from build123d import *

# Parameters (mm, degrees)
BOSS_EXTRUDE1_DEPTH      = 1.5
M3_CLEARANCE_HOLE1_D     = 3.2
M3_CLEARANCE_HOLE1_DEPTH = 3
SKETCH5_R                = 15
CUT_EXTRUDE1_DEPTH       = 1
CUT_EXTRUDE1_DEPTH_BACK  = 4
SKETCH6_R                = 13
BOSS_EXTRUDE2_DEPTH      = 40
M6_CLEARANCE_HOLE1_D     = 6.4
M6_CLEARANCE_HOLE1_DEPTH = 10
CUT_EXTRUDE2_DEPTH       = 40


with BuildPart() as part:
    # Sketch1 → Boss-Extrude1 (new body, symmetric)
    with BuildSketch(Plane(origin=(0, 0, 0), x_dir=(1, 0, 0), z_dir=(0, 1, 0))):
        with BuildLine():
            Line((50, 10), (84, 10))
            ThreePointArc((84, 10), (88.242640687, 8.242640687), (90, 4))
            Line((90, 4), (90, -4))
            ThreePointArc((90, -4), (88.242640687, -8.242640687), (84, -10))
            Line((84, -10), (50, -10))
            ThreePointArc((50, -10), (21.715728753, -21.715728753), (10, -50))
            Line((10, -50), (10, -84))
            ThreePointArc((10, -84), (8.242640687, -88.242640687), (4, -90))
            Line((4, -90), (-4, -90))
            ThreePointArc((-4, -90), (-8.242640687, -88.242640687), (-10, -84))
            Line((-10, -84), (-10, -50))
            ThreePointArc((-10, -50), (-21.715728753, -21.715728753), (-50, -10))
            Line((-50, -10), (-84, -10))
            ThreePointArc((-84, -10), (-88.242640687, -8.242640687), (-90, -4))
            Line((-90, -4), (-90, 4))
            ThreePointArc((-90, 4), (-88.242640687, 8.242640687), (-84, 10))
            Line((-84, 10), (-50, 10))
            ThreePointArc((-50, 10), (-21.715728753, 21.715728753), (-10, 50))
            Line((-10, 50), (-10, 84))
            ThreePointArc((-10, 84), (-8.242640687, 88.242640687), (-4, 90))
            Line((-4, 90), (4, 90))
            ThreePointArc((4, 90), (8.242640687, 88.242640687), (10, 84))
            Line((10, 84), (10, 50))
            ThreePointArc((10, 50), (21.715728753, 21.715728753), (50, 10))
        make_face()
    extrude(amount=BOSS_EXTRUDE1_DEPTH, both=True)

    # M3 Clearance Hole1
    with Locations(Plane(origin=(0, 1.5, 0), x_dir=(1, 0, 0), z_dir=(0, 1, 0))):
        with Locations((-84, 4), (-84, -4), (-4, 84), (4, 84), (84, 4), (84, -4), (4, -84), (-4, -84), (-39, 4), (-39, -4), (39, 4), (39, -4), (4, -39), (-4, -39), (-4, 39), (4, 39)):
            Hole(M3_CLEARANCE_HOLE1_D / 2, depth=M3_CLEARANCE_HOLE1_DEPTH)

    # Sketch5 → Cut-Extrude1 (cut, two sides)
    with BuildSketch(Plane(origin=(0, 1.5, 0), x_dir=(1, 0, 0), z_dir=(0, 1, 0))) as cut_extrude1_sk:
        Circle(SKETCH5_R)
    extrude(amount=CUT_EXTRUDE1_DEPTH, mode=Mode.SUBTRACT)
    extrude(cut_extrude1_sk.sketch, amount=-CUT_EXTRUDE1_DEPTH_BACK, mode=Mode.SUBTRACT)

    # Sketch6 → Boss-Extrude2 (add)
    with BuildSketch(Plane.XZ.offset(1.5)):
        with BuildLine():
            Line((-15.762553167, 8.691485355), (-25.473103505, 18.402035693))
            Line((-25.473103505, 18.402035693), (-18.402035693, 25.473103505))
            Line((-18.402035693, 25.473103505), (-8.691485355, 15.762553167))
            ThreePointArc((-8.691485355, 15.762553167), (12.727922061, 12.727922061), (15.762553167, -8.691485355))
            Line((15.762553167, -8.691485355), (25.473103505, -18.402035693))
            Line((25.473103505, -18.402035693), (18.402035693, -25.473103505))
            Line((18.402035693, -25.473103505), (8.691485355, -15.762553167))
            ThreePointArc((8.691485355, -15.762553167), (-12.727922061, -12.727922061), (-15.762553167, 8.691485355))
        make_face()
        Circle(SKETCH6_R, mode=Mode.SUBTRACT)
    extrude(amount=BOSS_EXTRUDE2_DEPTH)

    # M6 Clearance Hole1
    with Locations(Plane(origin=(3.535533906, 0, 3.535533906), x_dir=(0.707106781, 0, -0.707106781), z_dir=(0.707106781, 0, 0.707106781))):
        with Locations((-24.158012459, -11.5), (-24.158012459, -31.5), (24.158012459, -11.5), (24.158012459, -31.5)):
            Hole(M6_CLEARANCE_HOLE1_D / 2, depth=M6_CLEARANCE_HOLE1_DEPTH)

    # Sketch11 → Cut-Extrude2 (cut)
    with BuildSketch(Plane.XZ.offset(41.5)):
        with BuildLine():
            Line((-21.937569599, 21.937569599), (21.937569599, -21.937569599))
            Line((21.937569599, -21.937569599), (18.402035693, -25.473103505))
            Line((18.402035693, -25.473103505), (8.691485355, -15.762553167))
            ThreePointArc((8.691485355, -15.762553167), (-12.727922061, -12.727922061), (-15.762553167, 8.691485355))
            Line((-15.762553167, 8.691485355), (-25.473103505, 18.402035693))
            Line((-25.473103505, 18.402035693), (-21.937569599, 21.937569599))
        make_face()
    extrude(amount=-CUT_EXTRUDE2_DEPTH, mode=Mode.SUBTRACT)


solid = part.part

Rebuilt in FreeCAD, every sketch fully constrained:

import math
import FreeCAD as App
import Part
import Sketcher
from FreeCAD import Vector
Q = App.Units.Quantity

doc = App.newDocument("Part")
params = doc.addObject("Spreadsheet::Sheet", "Params")
for row, (alias, value) in enumerate([
    ("sketch1_radius", "40 mm"),
    ("sketch1_radius2", "6 mm"),
    ("sketch1_width", "34 mm"),
    ("sketch1_width2", "8 mm"),
    ("pad1_length", "3 mm"),
    ("sketch2_diameter", "3.2 mm"),
    ("hole_diameter", "3.2 mm"),
    ("hole_depth", "3 mm"),
    ("sketch3_diameter", "30 mm"),
    ("sketch4_diameter", "26 mm"),
    ("sketch4_radius", "18 mm"),
    ("sketch4_length", "10 mm"),
    ("pad2_length", "40 mm"),
    ("sketch5_diameter", "6.4 mm"),
    ("hole2_diameter", "6.4 mm"),
    ("hole2_depth", "10 mm"),
    ("sketch6_radius", "18 mm"),
    ("sketch6_length", "5 mm"),
    ("pocket2_length", "40 mm"),
], start=1):
    params.set(f"A{row}", alias)
    params.set(f"B{row}", "=" + value)
    params.setAlias(f"B{row}", alias)

body = doc.addObject("PartDesign::Body", "Body")

sketch1 = doc.addObject("Sketcher::SketchObject", "Sketch")
body.addObject(sketch1)
sketch1.AttachmentSupport = (doc.XZ_Plane, [""])
sketch1.MapMode = "FlatFace"
sketch1.addGeometry([
    Part.LineSegment(Vector(84, -10, 0), Vector(50, -10, 0)),
    Part.ArcOfCircle(Part.Circle(Vector(50, -50, 0), Vector(0, 0, 1), 40), math.radians(90), math.radians(180)),
    Part.LineSegment(Vector(10, -50, 0), Vector(10, -84, 0)),
    Part.ArcOfCircle(Part.Circle(Vector(4, -84, 0), Vector(0, 0, 1), 6), math.radians(-90), math.radians(0)),
    Part.LineSegment(Vector(4, -90, 0), Vector(-4, -90, 0)),
    Part.ArcOfCircle(Part.Circle(Vector(-4, -84, 0), Vector(0, 0, 1), 6), math.radians(180), math.radians(270)),
    Part.LineSegment(Vector(-10, -84, 0), Vector(-10, -50, 0)),
    Part.ArcOfCircle(Part.Circle(Vector(-50, -50, 0), Vector(0, 0, 1), 40), math.radians(0), math.radians(90)),
    Part.LineSegment(Vector(-50, -10, 0), Vector(-84, -10, 0)),
    Part.ArcOfCircle(Part.Circle(Vector(-84, -4, 0), Vector(0, 0, 1), 6), math.radians(180), math.radians(270)),
    Part.LineSegment(Vector(-90, -4, 0), Vector(-90, 4, 0)),
    Part.ArcOfCircle(Part.Circle(Vector(-84, 4, 0), Vector(0, 0, 1), 6), math.radians(90), math.radians(180)),
    Part.LineSegment(Vector(-84, 10, 0), Vector(-50, 10, 0)),
    Part.ArcOfCircle(Part.Circle(Vector(-50, 50, 0), Vector(0, 0, 1), 40), math.radians(-90), math.radians(0)),
    Part.LineSegment(Vector(-10, 50, 0), Vector(-10, 84, 0)),
    Part.ArcOfCircle(Part.Circle(Vector(-4, 84, 0), Vector(0, 0, 1), 6), math.radians(90), math.radians(180)),
    Part.LineSegment(Vector(-4, 90, 0), Vector(4, 90, 0)),
    Part.ArcOfCircle(Part.Circle(Vector(4, 84, 0), Vector(0, 0, 1), 6), math.radians(0), math.radians(90)),
    Part.LineSegment(Vector(10, 84, 0), Vector(10, 50, 0)),
    Part.ArcOfCircle(Part.Circle(Vector(50, 50, 0), Vector(0, 0, 1), 40), math.radians(-180), math.radians(-90)),
    Part.LineSegment(Vector(50, 10, 0), Vector(84, 10, 0)),
    Part.ArcOfCircle(Part.Circle(Vector(84, 4, 0), Vector(0, 0, 1), 6), math.radians(0), math.radians(90)),
    Part.LineSegment(Vector(90, 4, 0), Vector(90, -4, 0)),
    Part.ArcOfCircle(Part.Circle(Vector(84, -4, 0), Vector(0, 0, 1), 6), math.radians(-90), math.radians(0)),
], False)
sketch1.addConstraint([
    Sketcher.Constraint("Tangent", 0, 2, 1, 1),
    Sketcher.Constraint("Tangent", 1, 2, 2, 1),
    Sketcher.Constraint("Tangent", 2, 2, 3, 2),
    Sketcher.Constraint("Tangent", 3, 1, 4, 1),
    Sketcher.Constraint("Tangent", 4, 2, 5, 2),
    Sketcher.Constraint("Tangent", 5, 1, 6, 1),
    Sketcher.Constraint("Tangent", 6, 2, 7, 1),
    Sketcher.Constraint("Tangent", 7, 2, 8, 1),
    Sketcher.Constraint("Tangent", 8, 2, 9, 2),
    Sketcher.Constraint("Tangent", 9, 1, 10, 1),
    Sketcher.Constraint("Tangent", 10, 2, 11, 2),
    Sketcher.Constraint("Tangent", 11, 1, 12, 1),
    Sketcher.Constraint("Tangent", 12, 2, 13, 1),
    Sketcher.Constraint("Tangent", 13, 2, 14, 1),
    Sketcher.Constraint("Tangent", 14, 2, 15, 2),
    Sketcher.Constraint("Tangent", 15, 1, 16, 1),
    Sketcher.Constraint("Tangent", 16, 2, 17, 2),
    Sketcher.Constraint("Tangent", 17, 1, 18, 1),
    Sketcher.Constraint("Tangent", 18, 2, 19, 1),
    Sketcher.Constraint("Tangent", 19, 2, 20, 1),
    Sketcher.Constraint("Tangent", 20, 2, 21, 2),
    Sketcher.Constraint("Tangent", 21, 1, 22, 1),
    Sketcher.Constraint("Tangent", 22, 2, 23, 2),
    Sketcher.Constraint("Tangent", 23, 1, 0, 1),
    Sketcher.Constraint("Horizontal", 0),
    Sketcher.Constraint("Vertical", 2),
    Sketcher.Constraint("Horizontal", 4),
    Sketcher.Constraint("Vertical", 6),
    Sketcher.Constraint("Horizontal", 8),
    Sketcher.Constraint("Vertical", 10),
    Sketcher.Constraint("Horizontal", 12),
    Sketcher.Constraint("Vertical", 14),
    Sketcher.Constraint("Horizontal", 16),
    Sketcher.Constraint("Vertical", 18),
    Sketcher.Constraint("Horizontal", 20),
    Sketcher.Constraint("Vertical", 22),
    Sketcher.Constraint("Equal", 3, 5),
    Sketcher.Constraint("Equal", 1, 7),
    Sketcher.Constraint("Equal", 5, 9),
    Sketcher.Constraint("Equal", 9, 11),
    Sketcher.Constraint("Equal", 7, 13),
    Sketcher.Constraint("Equal", 11, 15),
    Sketcher.Constraint("Equal", 15, 17),
    Sketcher.Constraint("Equal", 13, 19),
    Sketcher.Constraint("Equal", 17, 21),
    Sketcher.Constraint("Equal", 21, 23),
    Sketcher.Constraint("Symmetric", 1, 3, 13, 3, -1, 1),
    Sketcher.Constraint("Symmetric", 5, 3, 17, 3, -1, 1),
    Sketcher.Constraint("Symmetric", 9, 3, 21, 3, -1, 1),
    Sketcher.Constraint("Symmetric", 1, 3, 7, 3, -2),
    Sketcher.Constraint("Equal", 20, 2),
    Sketcher.Constraint("Equal", 16, 10),
    Sketcher.Constraint("Radius", 1, 40.0),
    Sketcher.Constraint("Radius", 3, 6.0),
    Sketcher.Constraint("DistanceX", 0, 2, 0, 1, 34.0),
    Sketcher.Constraint("DistanceX", 4, 2, 4, 1, 8.0),
])
sketch1.setExpression("Constraints[52]", "Params.sketch1_radius")
sketch1.setExpression("Constraints[53]", "Params.sketch1_radius2")
sketch1.setExpression("Constraints[54]", "Params.sketch1_width")
sketch1.setExpression("Constraints[55]", "Params.sketch1_width2")
pad1 = doc.addObject("PartDesign::Pad", "Pad")
body.addObject(pad1)
pad1.Profile = sketch1
pad1.setExpression("Length", "Params.pad1_length")
pad1.Midplane = True

sketch2 = doc.addObject("Sketcher::SketchObject", "Sketch001")
body.addObject(sketch2)
sketch2.AttachmentSupport = (doc.XZ_Plane, [""])
sketch2.MapMode = "FlatFace"
sketch2.AttachmentOffset = App.Placement(Vector(0, 0, -1.5), App.Rotation())
sketch2.addGeometry([
    Part.Circle(Vector(-84, -4, 0), Vector(0, 0, 1), 1.6),
    Part.Circle(Vector(-84, 4, 0), Vector(0, 0, 1), 1.6),
    Part.Circle(Vector(-4, -84, 0), Vector(0, 0, 1), 1.6),
    Part.Circle(Vector(4, -84, 0), Vector(0, 0, 1), 1.6),
    Part.Circle(Vector(84, -4, 0), Vector(0, 0, 1), 1.6),
    Part.Circle(Vector(84, 4, 0), Vector(0, 0, 1), 1.6),
    Part.Circle(Vector(4, 84, 0), Vector(0, 0, 1), 1.6),
    Part.Circle(Vector(-4, 84, 0), Vector(0, 0, 1), 1.6),
    Part.Circle(Vector(-39, -4, 0), Vector(0, 0, 1), 1.6),
    Part.Circle(Vector(-39, 4, 0), Vector(0, 0, 1), 1.6),
    Part.Circle(Vector(39, -4, 0), Vector(0, 0, 1), 1.6),
    Part.Circle(Vector(39, 4, 0), Vector(0, 0, 1), 1.6),
    Part.Circle(Vector(4, 39, 0), Vector(0, 0, 1), 1.6),
    Part.Circle(Vector(-4, 39, 0), Vector(0, 0, 1), 1.6),
    Part.Circle(Vector(-4, -39, 0), Vector(0, 0, 1), 1.6),
    Part.Circle(Vector(4, -39, 0), Vector(0, 0, 1), 1.6),
], False)
sketch2.addConstraint([
    Sketcher.Constraint("Equal", 0, 1),
    Sketcher.Constraint("Equal", 1, 2),
    Sketcher.Constraint("Equal", 2, 3),
    Sketcher.Constraint("Equal", 3, 4),
    Sketcher.Constraint("Equal", 4, 5),
    Sketcher.Constraint("Equal", 5, 6),
    Sketcher.Constraint("Equal", 6, 7),
    Sketcher.Constraint("Equal", 7, 8),
    Sketcher.Constraint("Equal", 8, 9),
    Sketcher.Constraint("Equal", 9, 10),
    Sketcher.Constraint("Equal", 10, 11),
    Sketcher.Constraint("Equal", 11, 12),
    Sketcher.Constraint("Equal", 12, 13),
    Sketcher.Constraint("Equal", 13, 14),
    Sketcher.Constraint("Equal", 14, 15),
    Sketcher.Constraint("Symmetric", 1, 3, 4, 3, -1, 1),
    Sketcher.Constraint("Symmetric", 0, 3, 5, 3, -1, 1),
    Sketcher.Constraint("Symmetric", 2, 3, 6, 3, -1, 1),
    Sketcher.Constraint("Symmetric", 3, 3, 7, 3, -1, 1),
    Sketcher.Constraint("Symmetric", 9, 3, 10, 3, -1, 1),
    Sketcher.Constraint("Symmetric", 8, 3, 11, 3, -1, 1),
    Sketcher.Constraint("Symmetric", 12, 3, 14, 3, -1, 1),
    Sketcher.Constraint("Symmetric", 13, 3, 15, 3, -1, 1),
    Sketcher.Constraint("Symmetric", 2, 3, 3, 3, -2),
    Sketcher.Constraint("Symmetric", 0, 3, 4, 3, -2),
    Sketcher.Constraint("Symmetric", 8, 3, 10, 3, -2),
    Sketcher.Constraint("Symmetric", 12, 3, 13, 3, -2),
    Sketcher.Constraint("Horizontal", 4, 3, 8, 3),
    Sketcher.Constraint("Vertical", 6, 3, 12, 3),
    Sketcher.Constraint("Diameter", 0, 3.2),
    Sketcher.Constraint("DistanceX", 0, 3, -1, 1, 84.0),
    Sketcher.Constraint("DistanceY", 0, 3, -1, 1, 4.0),
    Sketcher.Constraint("DistanceX", 2, 3, -1, 1, 4.0),
    Sketcher.Constraint("DistanceY", 2, 3, -1, 1, 84.0),
    Sketcher.Constraint("DistanceX", 8, 3, -1, 1, 39.0),
    Sketcher.Constraint("DistanceY", -1, 1, 12, 3, 39.0),
])
sketch2.setExpression("Constraints[29]", "Params.sketch2_diameter")
doc.recompute()
hole = doc.addObject("PartDesign::Hole", "Hole")
body.addObject(hole)
hole.Profile = sketch2
hole.ThreadType = "None"
hole.setExpression("Diameter", "Params.hole_diameter")
hole.DepthType = "Dimension"
hole.setExpression("Depth", "Params.hole_depth")
hole.DrillPoint = "Flat"
hole.Reversed = True

sketch3 = doc.addObject("Sketcher::SketchObject", "Sketch002")
body.addObject(sketch3)
sketch3.AttachmentSupport = (doc.XZ_Plane, [""])
sketch3.MapMode = "FlatFace"
sketch3.AttachmentOffset = App.Placement(Vector(0, 0, -1.5), App.Rotation())
sketch3.addGeometry(Part.Circle(Vector(0, 0, 0), Vector(0, 0, 1), 15), False)
sketch3.addConstraint([
    Sketcher.Constraint("Coincident", 0, 3, -1, 1),
    Sketcher.Constraint("Diameter", 0, 30.0),
])
sketch3.setExpression("Constraints[1]", "Params.sketch3_diameter")
pocket1 = doc.addObject("PartDesign::Pocket", "Pocket")
body.addObject(pocket1)
pocket1.Profile = sketch3
pocket1.Type = "ThroughAll"
pocket1.Midplane = True

sketch4 = doc.addObject("Sketcher::SketchObject", "Sketch003")
body.addObject(sketch4)
sketch4.AttachmentSupport = (doc.XZ_Plane, [""])
sketch4.MapMode = "FlatFace"
sketch4.AttachmentOffset = App.Placement(Vector(0, 0, 1.5), App.Rotation())
sketch4.addGeometry([
    Part.LineSegment(Vector(-25, 18, 0), Vector(-16, 9, 0)),
    Part.ArcOfCircle(Part.Circle(Vector(0, 0, 0), Vector(0, 0, 1), 18), math.radians(151), math.radians(299)),
    Part.LineSegment(Vector(9, -16, 0), Vector(18, -25, 0)),
    Part.LineSegment(Vector(18, -25, 0), Vector(25, -18, 0)),
    Part.LineSegment(Vector(25, -18, 0), Vector(16, -9, 0)),
    Part.ArcOfCircle(Part.Circle(Vector(0, 0, 0), Vector(0, 0, 1), 18), math.radians(-29), math.radians(119)),
    Part.LineSegment(Vector(-9, 16, 0), Vector(-18, 25, 0)),
    Part.LineSegment(Vector(-18, 25, 0), Vector(-25, 18, 0)),
    Part.Circle(Vector(0, 0, 0), Vector(0, 0, 1), 13),
], False)
sketch4.addConstraint([
    Sketcher.Constraint("Coincident", 0, 2, 1, 1),
    Sketcher.Constraint("Coincident", 1, 2, 2, 1),
    Sketcher.Constraint("Coincident", 2, 2, 3, 1),
    Sketcher.Constraint("Coincident", 3, 2, 4, 1),
    Sketcher.Constraint("Coincident", 4, 2, 5, 1),
    Sketcher.Constraint("Coincident", 5, 2, 6, 1),
    Sketcher.Constraint("Coincident", 6, 2, 7, 1),
    Sketcher.Constraint("Coincident", 7, 2, 0, 1),
    Sketcher.Constraint("Coincident", 1, 3, -1, 1),
    Sketcher.Constraint("Coincident", 5, 3, -1, 1),
    Sketcher.Constraint("Coincident", 8, 3, -1, 1),
    Sketcher.Constraint("Equal", 1, 5),
    Sketcher.Constraint("Symmetric", 2, 2, 6, 2, -1, 1),
    Sketcher.Constraint("Symmetric", 3, 2, 7, 2, -1, 1),
    Sketcher.Constraint("Parallel", 0, 2),
    Sketcher.Constraint("Perpendicular", 2, 3),
    Sketcher.Constraint("Perpendicular", 3, 4),
    Sketcher.Constraint("Parallel", 4, 6),
    Sketcher.Constraint("Equal", 0, 2),
    Sketcher.Constraint("Diameter", 8, 26.0),
    Sketcher.Constraint("Radius", 1, 18.0),
    Sketcher.Constraint("Angle", 0, Q("-45 deg")),
    Sketcher.Constraint("Distance", 3, 10.0),
    Sketcher.Constraint("Distance", 0, 13.732792),
])
sketch4.setExpression("Constraints[19]", "Params.sketch4_diameter")
sketch4.setExpression("Constraints[20]", "Params.sketch4_radius")
sketch4.setExpression("Constraints[22]", "Params.sketch4_length")
pad2 = doc.addObject("PartDesign::Pad", "Pad001")
body.addObject(pad2)
pad2.Profile = sketch4
pad2.setExpression("Length", "Params.pad2_length")

sketch5 = doc.addObject("Sketcher::SketchObject", "Sketch004")
body.addObject(sketch5)
sketch5.Placement = App.Placement(Vector(3.535534, 0, 3.535534), App.Rotation(Vector(0.707106781, 0, -0.707106781), Vector(0, 0.999999999, 0), Vector(0.707106781, 0, 0.707106781), "ZXY"))
sketch5.addGeometry([
    Part.Circle(Vector(-24.2, -11.5, 0), Vector(0, 0, 1), 3.2),
    Part.Circle(Vector(-24.2, -31.5, 0), Vector(0, 0, 1), 3.2),
    Part.Circle(Vector(24.2, -11.5, 0), Vector(0, 0, 1), 3.2),
    Part.Circle(Vector(24.2, -31.5, 0), Vector(0, 0, 1), 3.2),
], False)
sketch5.addConstraint([
    Sketcher.Constraint("Equal", 0, 1),
    Sketcher.Constraint("Equal", 1, 2),
    Sketcher.Constraint("Equal", 2, 3),
    Sketcher.Constraint("Symmetric", 0, 3, 2, 3, -2),
    Sketcher.Constraint("Symmetric", 1, 3, 3, 3, -2),
    Sketcher.Constraint("Vertical", 0, 3, 1, 3),
    Sketcher.Constraint("Diameter", 0, 6.4),
    Sketcher.Constraint("DistanceY", 1, 3, 0, 3, 20.0),
    Sketcher.Constraint("DistanceY", 0, 3, -1, 1, 11.5),
    Sketcher.Constraint("DistanceX", 0, 3, -1, 1, 24.158012),
])
sketch5.setExpression("Constraints[6]", "Params.sketch5_diameter")
doc.recompute()
hole2 = doc.addObject("PartDesign::Hole", "Hole001")
body.addObject(hole2)
hole2.Profile = sketch5
hole2.ThreadType = "None"
hole2.setExpression("Diameter", "Params.hole2_diameter")
hole2.DepthType = "Dimension"
hole2.setExpression("Depth", "Params.hole2_depth")
hole2.DrillPoint = "Flat"

sketch6 = doc.addObject("Sketcher::SketchObject", "Sketch005")
body.addObject(sketch6)
sketch6.AttachmentSupport = (doc.XZ_Plane, [""])
sketch6.MapMode = "FlatFace"
sketch6.AttachmentOffset = App.Placement(Vector(0, 0, 41.5), App.Rotation())
sketch6.addGeometry([
    Part.LineSegment(Vector(22, -22, 0), Vector(-22, 22, 0)),
    Part.LineSegment(Vector(-22, 22, 0), Vector(-25, 18, 0)),
    Part.LineSegment(Vector(-25, 18, 0), Vector(-16, 9, 0)),
    Part.ArcOfCircle(Part.Circle(Vector(0, 0, 0), Vector(0, 0, 1), 18), math.radians(151), math.radians(299)),
    Part.LineSegment(Vector(9, -16, 0), Vector(18, -25, 0)),
    Part.LineSegment(Vector(18, -25, 0), Vector(22, -22, 0)),
], False)
sketch6.addConstraint([
    Sketcher.Constraint("Coincident", 0, 2, 1, 1),
    Sketcher.Constraint("Coincident", 1, 2, 2, 1),
    Sketcher.Constraint("Coincident", 2, 2, 3, 1),
    Sketcher.Constraint("Coincident", 3, 2, 4, 1),
    Sketcher.Constraint("Coincident", 4, 2, 5, 1),
    Sketcher.Constraint("Coincident", 5, 2, 0, 1),
    Sketcher.Constraint("Coincident", 3, 3, -1, 1),
    Sketcher.Constraint("Symmetric", 0, 2, 5, 2, -1, 1),
    Sketcher.Constraint("Perpendicular", 0, 1),
    Sketcher.Constraint("Perpendicular", 1, 2),
    Sketcher.Constraint("Parallel", 2, 4),
    Sketcher.Constraint("Perpendicular", 4, 5),
    Sketcher.Constraint("Equal", 2, 4),
    Sketcher.Constraint("Radius", 3, 18.0),
    Sketcher.Constraint("Angle", 0, Q("135 deg")),
    Sketcher.Constraint("Distance", 1, 5.0),
    Sketcher.Constraint("Distance", 2, 13.732792),
])
sketch6.setExpression("Constraints[13]", "Params.sketch6_radius")
sketch6.setExpression("Constraints[15]", "Params.sketch6_length")
pocket2 = doc.addObject("PartDesign::Pocket", "Pocket001")
body.addObject(pocket2)
pocket2.Profile = sketch6
pocket2.setExpression("Length", "Params.pocket2_length")

doc.recompute()
